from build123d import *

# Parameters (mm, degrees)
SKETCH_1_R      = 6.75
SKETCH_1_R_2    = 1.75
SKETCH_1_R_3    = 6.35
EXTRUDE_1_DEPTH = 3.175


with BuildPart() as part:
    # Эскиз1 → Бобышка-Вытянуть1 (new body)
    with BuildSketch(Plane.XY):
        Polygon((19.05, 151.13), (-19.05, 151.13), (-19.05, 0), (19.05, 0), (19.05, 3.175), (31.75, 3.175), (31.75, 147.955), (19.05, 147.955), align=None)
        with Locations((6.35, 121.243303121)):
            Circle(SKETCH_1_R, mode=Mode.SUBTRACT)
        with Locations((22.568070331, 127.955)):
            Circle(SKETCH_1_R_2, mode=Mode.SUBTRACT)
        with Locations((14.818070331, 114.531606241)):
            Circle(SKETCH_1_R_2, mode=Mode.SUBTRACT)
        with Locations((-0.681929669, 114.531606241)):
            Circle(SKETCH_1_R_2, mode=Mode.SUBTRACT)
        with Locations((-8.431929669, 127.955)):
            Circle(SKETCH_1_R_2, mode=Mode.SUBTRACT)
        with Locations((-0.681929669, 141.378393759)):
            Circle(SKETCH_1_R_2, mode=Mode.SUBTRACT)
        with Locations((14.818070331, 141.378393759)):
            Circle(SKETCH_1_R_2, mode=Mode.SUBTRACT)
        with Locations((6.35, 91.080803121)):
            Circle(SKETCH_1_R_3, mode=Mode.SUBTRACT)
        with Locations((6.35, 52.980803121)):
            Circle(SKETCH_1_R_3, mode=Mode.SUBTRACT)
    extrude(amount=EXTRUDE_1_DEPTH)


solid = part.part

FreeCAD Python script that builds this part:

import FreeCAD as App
import Part
import Sketcher

V = App.Vector
Q = App.Units.Quantity

doc = App.newDocument("Part")
body = doc.addObject("PartDesign::Body", "Body")

sketch1 = body.newObject("Sketcher::SketchObject", "Sketch")
sketch1.AttachmentSupport = (doc.getObject("XY_Plane"), [""])
sketch1.MapMode = "FlatFace"
sketch1.addGeometry([
    Part.LineSegment(V(19.1, 151.1, 0), V(-19.1, 151.1, 0)),
    Part.LineSegment(V(-19.1, 151.1, 0), V(-19.1, 0, 0)),
    Part.LineSegment(V(-19.1, 0, 0), V(19.1, 0, 0)),
    Part.LineSegment(V(19.1, 0, 0), V(19.1, 3.2, 0)),
    Part.LineSegment(V(19.1, 3.2, 0), V(31.8, 3.2, 0)),
    Part.LineSegment(V(31.8, 3.2, 0), V(31.8, 148, 0)),
    Part.LineSegment(V(31.8, 148, 0), V(19.1, 148, 0)),
    Part.LineSegment(V(19.1, 148, 0), V(19.1, 151.1, 0)),
    Part.Circle(V(6.3, 53, 0), V(0, 0, 1), 6.3),
    Part.Circle(V(6.3, 91.1, 0), V(0, 0, 1), 6.3),
    Part.Circle(V(-0.7, 114.5, 0), V(0, 0, 1), 1.8),
    Part.Circle(V(-8.4, 128, 0), V(0, 0, 1), 1.8),
    Part.Circle(V(6.3, 121.2, 0), V(0, 0, 1), 6.8),
    Part.Circle(V(-0.7, 141.4, 0), V(0, 0, 1), 1.8),
    Part.Circle(V(14.8, 114.5, 0), V(0, 0, 1), 1.8),
    Part.Circle(V(14.8, 141.4, 0), V(0, 0, 1), 1.8),
    Part.Circle(V(22.6, 128, 0), V(0, 0, 1), 1.8),
], False)
sketch1.addConstraint([
    Sketcher.Constraint("Coincident", 0, 2, 1, 1),
    Sketcher.Constraint("Coincident", 1, 2, 2, 1),
    Sketcher.Constraint("Coincident", 2, 2, 3, 1),
    Sketcher.Constraint("Coincident", 3, 2, 4, 1),
    Sketcher.Constraint("Coincident", 4, 2, 5, 1),
    Sketcher.Constraint("Coincident", 5, 2, 6, 1),
    Sketcher.Constraint("Coincident", 6, 2, 7, 1),
    Sketcher.Constraint("Coincident", 7, 2, 0, 1),
    Sketcher.Constraint("Horizontal", 0),
    Sketcher.Constraint("Vertical", 1),
    Sketcher.Constraint("Horizontal", 2),
    Sketcher.Constraint("Vertical", 3),
    Sketcher.Constraint("Horizontal", 4),
    Sketcher.Constraint("Vertical", 5),
    Sketcher.Constraint("Horizontal", 6),
    Sketcher.Constraint("Vertical", 7),
    Sketcher.Constraint("Equal", 8, 9),
    Sketcher.Constraint("Equal", 10, 11),
    Sketcher.Constraint("Equal", 11, 13),
    Sketcher.Constraint("Equal", 13, 14),
    Sketcher.Constraint("Equal", 14, 15),
    Sketcher.Constraint("Equal", 15, 16),
    Sketcher.Constraint("Symmetric", 1, 2, 2, 2, -1, 1),
    Sketcher.Constraint("Horizontal", 10, 3, 14, 3),
    Sketcher.Constraint("Horizontal", 13, 3, 15, 3),
    Sketcher.Constraint("Horizontal", 11, 3, 16, 3),
    Sketcher.Constraint("Vertical", 8, 3, 9, 3),
    Sketcher.Constraint("Vertical", 9, 3, 12, 3),
    Sketcher.Constraint("Vertical", 10, 3, 13, 3),
    Sketcher.Constraint("Vertical", 14, 3, 15, 3),
    Sketcher.Constraint("Vertical", 3, 2, 6, 2),
    Sketcher.Constraint("Equal", 3, 7),
    Sketcher.Constraint("Diameter", 8, Q("0.5 in")),
    Sketcher.Constraint("DistanceX", 0, 2, 0, 1, Q("1.5 in")),
    Sketcher.Constraint("DistanceX", 4, 1, 4, 2, Q("0.5 in")),
    Sketcher.Constraint("DistanceY", 5, 1, 5, 2, Q("5.7 in")),
    Sketcher.Constraint("DistanceX", 0, 2, 12, 3, Q("1 in")),
    Sketcher.Constraint("DistanceY", 1, 2, 1, 1, Q("5.95 in")),
    Sketcher.Constraint("DistanceY", 8, 3, 9, 3, Q("1.5 in")),
    Sketcher.Constraint("Diameter", 10, Q("3.5 mm")),
    Sketcher.Constraint("Diameter", 12, Q("13.5 mm")),
    Sketcher.Constraint("DistanceY", 9, 3, 12, 3, Q("1.1875 in")),
    Sketcher.Constraint("DistanceY", -1, 1, 11, 3, Q("127.955 mm")),
    Sketcher.Constraint("DistanceX", 11, 3, 10, 3, Q("7.75 mm")),
    Sketcher.Constraint("DistanceX", 10, 3, 14, 3, Q("15.5 mm")),
    Sketcher.Constraint("DistanceX", 14, 3, 16, 3, Q("7.75 mm")),
    Sketcher.Constraint("DistanceX", 10, 3, -1, 1, Q("0.68193 mm")),
    Sketcher.Constraint("DistanceY", 12, 3, 13, 3, Q("20.135091 mm")),
    Sketcher.Constraint("DistanceY", -1, 1, 8, 3, Q("52.980803 mm")),
    Sketcher.Constraint("DistanceY", -1, 1, 10, 3, Q("114.531606 mm")),
])
pad1 = body.newObject("PartDesign::Pad", "Pad")
pad1.Profile = sketch1
pad1.Length = Q("0.125 in")

doc.recompute()
